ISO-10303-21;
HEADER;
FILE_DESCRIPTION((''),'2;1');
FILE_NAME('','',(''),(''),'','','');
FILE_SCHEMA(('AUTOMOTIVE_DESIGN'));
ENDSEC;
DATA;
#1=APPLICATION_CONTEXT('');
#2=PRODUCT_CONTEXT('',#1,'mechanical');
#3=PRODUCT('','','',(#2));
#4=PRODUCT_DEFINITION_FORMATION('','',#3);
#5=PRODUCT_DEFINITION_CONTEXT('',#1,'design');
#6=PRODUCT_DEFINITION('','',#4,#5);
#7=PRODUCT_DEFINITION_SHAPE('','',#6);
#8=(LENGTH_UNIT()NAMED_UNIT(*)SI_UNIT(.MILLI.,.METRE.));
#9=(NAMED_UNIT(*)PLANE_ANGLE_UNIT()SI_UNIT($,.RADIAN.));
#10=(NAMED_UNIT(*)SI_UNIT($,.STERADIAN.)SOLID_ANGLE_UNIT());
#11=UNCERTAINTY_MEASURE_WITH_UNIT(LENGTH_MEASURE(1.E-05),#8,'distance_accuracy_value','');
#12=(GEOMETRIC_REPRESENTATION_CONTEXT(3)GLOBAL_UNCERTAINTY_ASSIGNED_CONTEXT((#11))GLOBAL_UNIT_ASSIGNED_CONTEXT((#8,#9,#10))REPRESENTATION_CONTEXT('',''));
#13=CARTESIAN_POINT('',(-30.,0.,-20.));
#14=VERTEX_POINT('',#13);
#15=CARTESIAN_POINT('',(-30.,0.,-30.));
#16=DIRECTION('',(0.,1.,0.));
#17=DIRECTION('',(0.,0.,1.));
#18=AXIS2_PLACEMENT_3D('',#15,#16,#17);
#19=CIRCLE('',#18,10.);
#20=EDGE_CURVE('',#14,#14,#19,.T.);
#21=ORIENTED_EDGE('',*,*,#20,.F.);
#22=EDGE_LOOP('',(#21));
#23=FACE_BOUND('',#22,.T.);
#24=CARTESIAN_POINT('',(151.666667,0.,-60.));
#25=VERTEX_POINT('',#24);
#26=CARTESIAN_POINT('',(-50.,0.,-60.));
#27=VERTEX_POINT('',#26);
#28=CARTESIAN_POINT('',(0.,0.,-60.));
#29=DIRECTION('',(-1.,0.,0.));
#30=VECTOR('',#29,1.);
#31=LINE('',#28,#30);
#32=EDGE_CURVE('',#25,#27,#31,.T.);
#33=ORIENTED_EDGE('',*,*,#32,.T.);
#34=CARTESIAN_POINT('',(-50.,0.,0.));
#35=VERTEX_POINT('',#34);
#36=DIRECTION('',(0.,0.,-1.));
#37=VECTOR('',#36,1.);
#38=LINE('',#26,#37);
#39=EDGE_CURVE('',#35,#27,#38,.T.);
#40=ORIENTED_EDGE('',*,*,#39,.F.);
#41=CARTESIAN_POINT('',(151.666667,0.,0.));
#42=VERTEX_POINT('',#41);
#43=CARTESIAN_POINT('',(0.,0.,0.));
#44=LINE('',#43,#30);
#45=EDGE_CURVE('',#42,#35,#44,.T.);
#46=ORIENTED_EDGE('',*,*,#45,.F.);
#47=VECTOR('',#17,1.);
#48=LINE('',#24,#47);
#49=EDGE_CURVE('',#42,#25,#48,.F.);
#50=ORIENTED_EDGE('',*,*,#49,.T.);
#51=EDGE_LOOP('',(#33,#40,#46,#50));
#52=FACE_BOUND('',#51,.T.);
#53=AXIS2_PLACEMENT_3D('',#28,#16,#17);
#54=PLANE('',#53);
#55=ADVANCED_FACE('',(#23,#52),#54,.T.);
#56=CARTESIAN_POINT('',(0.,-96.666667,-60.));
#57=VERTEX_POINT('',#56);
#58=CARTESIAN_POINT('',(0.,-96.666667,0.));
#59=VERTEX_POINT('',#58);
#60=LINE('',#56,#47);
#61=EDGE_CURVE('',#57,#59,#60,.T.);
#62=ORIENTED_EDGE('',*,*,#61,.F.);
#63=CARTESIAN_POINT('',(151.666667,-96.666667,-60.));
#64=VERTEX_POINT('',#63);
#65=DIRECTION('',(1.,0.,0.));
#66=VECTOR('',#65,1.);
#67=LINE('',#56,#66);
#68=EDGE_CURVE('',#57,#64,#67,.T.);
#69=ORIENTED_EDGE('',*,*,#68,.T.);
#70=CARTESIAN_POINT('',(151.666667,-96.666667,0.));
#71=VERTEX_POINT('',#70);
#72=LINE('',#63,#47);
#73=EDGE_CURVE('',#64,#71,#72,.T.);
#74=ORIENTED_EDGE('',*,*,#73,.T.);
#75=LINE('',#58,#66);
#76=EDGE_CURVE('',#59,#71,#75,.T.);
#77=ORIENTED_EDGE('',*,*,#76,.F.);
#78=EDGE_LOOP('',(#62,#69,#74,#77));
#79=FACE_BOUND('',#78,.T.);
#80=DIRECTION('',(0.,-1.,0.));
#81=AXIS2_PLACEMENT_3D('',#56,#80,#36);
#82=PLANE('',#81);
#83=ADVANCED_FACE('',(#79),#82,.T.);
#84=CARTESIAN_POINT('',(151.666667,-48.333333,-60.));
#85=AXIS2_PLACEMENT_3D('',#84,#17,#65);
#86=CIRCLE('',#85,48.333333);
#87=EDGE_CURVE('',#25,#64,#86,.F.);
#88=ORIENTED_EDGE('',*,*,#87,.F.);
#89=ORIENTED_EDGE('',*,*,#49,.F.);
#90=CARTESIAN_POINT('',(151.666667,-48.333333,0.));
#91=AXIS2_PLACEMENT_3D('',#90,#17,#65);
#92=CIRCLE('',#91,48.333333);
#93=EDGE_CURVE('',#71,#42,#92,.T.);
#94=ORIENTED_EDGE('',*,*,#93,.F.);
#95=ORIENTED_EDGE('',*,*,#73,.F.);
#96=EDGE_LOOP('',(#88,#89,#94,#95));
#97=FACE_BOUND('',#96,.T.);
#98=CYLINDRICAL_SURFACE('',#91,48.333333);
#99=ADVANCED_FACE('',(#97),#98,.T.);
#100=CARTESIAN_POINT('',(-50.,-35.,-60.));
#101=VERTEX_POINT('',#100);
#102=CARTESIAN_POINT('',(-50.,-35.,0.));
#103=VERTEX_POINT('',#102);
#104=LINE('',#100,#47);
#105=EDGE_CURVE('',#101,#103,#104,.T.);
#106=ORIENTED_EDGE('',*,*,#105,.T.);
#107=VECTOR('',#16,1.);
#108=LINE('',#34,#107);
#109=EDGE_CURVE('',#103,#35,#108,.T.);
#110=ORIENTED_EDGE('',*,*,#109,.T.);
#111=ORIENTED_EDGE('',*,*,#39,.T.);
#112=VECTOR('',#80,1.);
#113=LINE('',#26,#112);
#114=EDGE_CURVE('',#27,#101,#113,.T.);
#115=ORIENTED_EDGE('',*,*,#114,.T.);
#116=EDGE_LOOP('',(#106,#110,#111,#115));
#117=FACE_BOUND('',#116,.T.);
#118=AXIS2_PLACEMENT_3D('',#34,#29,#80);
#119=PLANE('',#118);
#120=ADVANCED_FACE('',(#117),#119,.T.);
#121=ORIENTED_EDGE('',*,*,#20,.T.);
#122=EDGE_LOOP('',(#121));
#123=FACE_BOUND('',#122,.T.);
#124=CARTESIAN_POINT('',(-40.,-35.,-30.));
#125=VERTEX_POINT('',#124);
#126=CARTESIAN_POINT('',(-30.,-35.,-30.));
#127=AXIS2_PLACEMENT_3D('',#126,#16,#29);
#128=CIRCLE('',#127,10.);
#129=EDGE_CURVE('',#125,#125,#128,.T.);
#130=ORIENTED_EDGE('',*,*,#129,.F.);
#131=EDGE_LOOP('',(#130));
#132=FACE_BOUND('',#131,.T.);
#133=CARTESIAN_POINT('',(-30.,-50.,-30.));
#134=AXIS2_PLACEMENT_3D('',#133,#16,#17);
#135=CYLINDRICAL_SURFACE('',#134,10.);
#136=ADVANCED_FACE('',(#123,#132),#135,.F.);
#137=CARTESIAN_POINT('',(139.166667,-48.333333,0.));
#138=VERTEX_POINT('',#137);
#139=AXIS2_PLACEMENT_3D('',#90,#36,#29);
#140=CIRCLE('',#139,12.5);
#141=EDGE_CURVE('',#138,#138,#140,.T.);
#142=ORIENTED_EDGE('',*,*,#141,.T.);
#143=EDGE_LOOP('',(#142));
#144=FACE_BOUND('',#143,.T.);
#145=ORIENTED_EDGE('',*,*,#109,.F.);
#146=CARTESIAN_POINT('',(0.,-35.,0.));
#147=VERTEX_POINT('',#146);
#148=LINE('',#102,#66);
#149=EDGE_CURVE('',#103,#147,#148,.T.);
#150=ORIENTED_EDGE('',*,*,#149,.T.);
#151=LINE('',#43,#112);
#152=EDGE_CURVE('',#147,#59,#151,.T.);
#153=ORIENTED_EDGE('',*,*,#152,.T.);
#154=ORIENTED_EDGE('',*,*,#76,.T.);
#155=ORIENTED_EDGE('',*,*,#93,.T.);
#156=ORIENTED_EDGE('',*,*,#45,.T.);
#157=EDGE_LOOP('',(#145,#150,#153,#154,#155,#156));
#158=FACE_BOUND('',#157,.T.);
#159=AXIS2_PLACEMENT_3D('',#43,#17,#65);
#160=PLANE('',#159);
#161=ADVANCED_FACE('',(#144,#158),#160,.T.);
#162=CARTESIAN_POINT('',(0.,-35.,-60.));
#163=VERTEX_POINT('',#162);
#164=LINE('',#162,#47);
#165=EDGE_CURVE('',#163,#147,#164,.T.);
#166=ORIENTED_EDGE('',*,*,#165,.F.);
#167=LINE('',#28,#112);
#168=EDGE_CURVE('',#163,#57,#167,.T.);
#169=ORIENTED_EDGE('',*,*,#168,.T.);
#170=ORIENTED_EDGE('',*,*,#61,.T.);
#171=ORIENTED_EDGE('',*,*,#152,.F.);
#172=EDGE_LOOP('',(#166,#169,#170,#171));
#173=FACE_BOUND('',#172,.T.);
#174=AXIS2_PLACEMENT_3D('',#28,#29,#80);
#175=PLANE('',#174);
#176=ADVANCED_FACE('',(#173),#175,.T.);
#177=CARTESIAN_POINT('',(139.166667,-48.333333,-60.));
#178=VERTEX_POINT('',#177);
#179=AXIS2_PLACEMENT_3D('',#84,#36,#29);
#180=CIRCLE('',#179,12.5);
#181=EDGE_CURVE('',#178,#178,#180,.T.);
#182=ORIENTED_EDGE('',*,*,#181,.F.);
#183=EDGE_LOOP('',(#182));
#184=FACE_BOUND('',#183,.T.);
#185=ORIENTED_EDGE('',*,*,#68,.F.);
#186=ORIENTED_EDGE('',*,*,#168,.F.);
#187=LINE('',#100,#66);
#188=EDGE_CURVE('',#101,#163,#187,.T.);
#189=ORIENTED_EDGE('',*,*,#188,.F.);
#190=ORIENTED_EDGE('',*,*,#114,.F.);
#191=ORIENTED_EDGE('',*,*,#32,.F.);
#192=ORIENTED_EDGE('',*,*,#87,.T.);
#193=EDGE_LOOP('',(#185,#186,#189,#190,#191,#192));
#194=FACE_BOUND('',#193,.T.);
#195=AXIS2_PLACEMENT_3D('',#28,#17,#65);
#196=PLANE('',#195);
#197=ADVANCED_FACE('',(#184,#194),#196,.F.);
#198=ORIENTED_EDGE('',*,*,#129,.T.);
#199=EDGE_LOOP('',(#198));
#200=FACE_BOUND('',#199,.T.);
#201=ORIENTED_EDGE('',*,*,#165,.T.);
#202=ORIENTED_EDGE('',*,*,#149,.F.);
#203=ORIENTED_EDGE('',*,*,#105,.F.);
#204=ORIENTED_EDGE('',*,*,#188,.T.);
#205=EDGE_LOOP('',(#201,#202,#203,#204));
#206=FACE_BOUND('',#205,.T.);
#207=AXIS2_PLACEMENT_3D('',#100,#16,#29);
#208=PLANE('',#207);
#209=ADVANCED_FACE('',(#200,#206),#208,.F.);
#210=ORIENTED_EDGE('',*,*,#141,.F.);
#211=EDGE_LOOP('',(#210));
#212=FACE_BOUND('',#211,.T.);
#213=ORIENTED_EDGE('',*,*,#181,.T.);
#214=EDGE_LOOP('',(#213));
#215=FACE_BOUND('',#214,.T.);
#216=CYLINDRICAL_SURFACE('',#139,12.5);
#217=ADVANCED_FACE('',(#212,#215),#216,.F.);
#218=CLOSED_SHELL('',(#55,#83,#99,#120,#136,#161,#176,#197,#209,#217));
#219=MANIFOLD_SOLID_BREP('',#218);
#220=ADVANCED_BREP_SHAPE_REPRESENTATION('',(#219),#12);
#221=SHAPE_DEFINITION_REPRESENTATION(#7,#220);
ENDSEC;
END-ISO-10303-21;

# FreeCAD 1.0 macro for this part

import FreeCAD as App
import Part
import Sketcher


def edges_at(feature, points):
    """Names of the edges that pass closest to the given points."""
    edges = feature.Shape.Edges
    near = lambda p: min(range(len(edges)), key=lambda i: edges[i].distToShape(Part.Vertex(*p))[0])
    return sorted({f"Edge{near(p) + 1}" for p in points})

doc = App.newDocument("Part")
params = doc.addObject("Spreadsheet::Sheet", "Params")
for row, (alias, value) in enumerate([
    ("sketch1_width", "200 mm"),
    ("pad1_length", "60 mm"),
    ("fillet_radius", "48.333333 mm"),
    ("sketch2_diameter", "25 mm"),
    ("sketch3_width", "35 mm"),
    ("sketch3_height", "60 mm"),
    ("pad2_length", "50 mm"),
    ("sketch4_diameter", "20 mm"),
    ("pocket2_length", "50 mm"),
], start=1):
    params.set(f"A{row}", alias)
    params.set(f"B{row}", "=" + value)
    params.setAlias(f"B{row}", alias)

body = doc.addObject("PartDesign::Body", "Body")

# Sketch on XY plane
sketch1 = doc.addObject("Sketcher::SketchObject", "Sketch")
body.addObject(sketch1)
sketch1.AttachmentSupport = (doc.XY_Plane, [""])
sketch1.MapMode = "FlatFace"
sketch1.addGeometry([
    Part.LineSegment(App.Vector(0, 0, 0), App.Vector(0, -96.666667, 0)),
    Part.LineSegment(App.Vector(0, -96.666667, 0), App.Vector(200, -96.666667, 0)),
    Part.LineSegment(App.Vector(200, -96.666667, 0), App.Vector(200, 0, 0)),
    Part.LineSegment(App.Vector(200, 0, 0), App.Vector(0, 0, 0)),
], False)
sketch1.addConstraint([
    Sketcher.Constraint("Coincident", 0, 2, 1, 1),
    Sketcher.Constraint("Coincident", 1, 2, 2, 1),
    Sketcher.Constraint("Coincident", 2, 2, 3, 1),
    Sketcher.Constraint("Coincident", 3, 2, 0, 1),
    Sketcher.Constraint("Vertical", 0),
    Sketcher.Constraint("Horizontal", 1),
    Sketcher.Constraint("Vertical", 2),
    Sketcher.Constraint("Horizontal", 3),
    Sketcher.Constraint("Coincident", 3, 2, -1, 1),
    Sketcher.Constraint("DistanceX", 1, 1, 1, 2, 200.0),
    Sketcher.Constraint("DistanceY", 0, 2, 0, 1, 96.666667),
])
sketch1.setExpression("Constraints[9]", "Params.sketch1_width")
pad1 = doc.addObject("PartDesign::Pad", "Pad")
body.addObject(pad1)
pad1.Profile = sketch1
pad1.setExpression("Length", "Params.pad1_length")
pad1.Reversed = True
doc.recompute()

fillet = doc.addObject("PartDesign::Fillet", "Fillet")
body.addObject(fillet)
fillet.Base = (pad1, edges_at(pad1, [(200, 0, -30), (200, -96.667, -30)]))
fillet.setExpression("Radius", "Params.fillet_radius")

# Sketch on XY plane
sketch2 = doc.addObject("Sketcher::SketchObject", "Sketch001")
body.addObject(sketch2)
sketch2.AttachmentSupport = (doc.XY_Plane, [""])
sketch2.MapMode = "FlatFace"
sketch2.AttachmentOffset = App.Placement(App.Vector(0, 0, -60), App.Rotation())
sketch2.addGeometry(Part.Circle(App.Vector(151.666667, -48.333333, 0), App.Vector(0, 0, 1), 12.5), False)
sketch2.addConstraint([
    Sketcher.Constraint("Diameter", 0, 25.0),
    Sketcher.Constraint("DistanceX", -1, 1, 0, 3, 151.666667),
    Sketcher.Constraint("DistanceY", 0, 3, -1, 1, 48.333333),
])
sketch2.setExpression("Constraints[0]", "Params.sketch2_diameter")
pocket1 = doc.addObject("PartDesign::Pocket", "Pocket")
body.addObject(pocket1)
pocket1.Profile = sketch2
pocket1.Type = "ThroughAll"
pocket1.Reversed = True

# Sketch on YZ plane
sketch3 = doc.addObject("Sketcher::SketchObject", "Sketch002")
body.addObject(sketch3)
sketch3.AttachmentSupport = (doc.YZ_Plane, [""])
sketch3.MapMode = "FlatFace"
sketch3.addGeometry([
    Part.LineSegment(App.Vector(0, -60, 0), App.Vector(-35, -60, 0)),
    Part.LineSegment(App.Vector(-35, -60, 0), App.Vector(-35, 0, 0)),
    Part.LineSegment(App.Vector(-35, 0, 0), App.Vector(0, 0, 0)),
    Part.LineSegment(App.Vector(0, 0, 0), App.Vector(0, -60, 0)),
], False)
sketch3.addConstraint([
    Sketcher.Constraint("Coincident", 0, 2, 1, 1),
    Sketcher.Constraint("Coincident", 1, 2, 2, 1),
    Sketcher.Constraint("Coincident", 2, 2, 3, 1),
    Sketcher.Constraint("Coincident", 3, 2, 0, 1),
    Sketcher.Constraint("Horizontal", 0),
    Sketcher.Constraint("Vertical", 1),
    Sketcher.Constraint("Horizontal", 2),
    Sketcher.Constraint("Vertical", 3),
    Sketcher.Constraint("Coincident", 2, 2, -1, 1),
    Sketcher.Constraint("DistanceX", 0, 2, 0, 1, 35.0),
    Sketcher.Constraint("DistanceY", 1, 1, 1, 2, 60.0),
])
sketch3.setExpression("Constraints[9]", "Params.sketch3_width")
sketch3.setExpression("Constraints[10]", "Params.sketch3_height")
pad2 = doc.addObject("PartDesign::Pad", "Pad001")
body.addObject(pad2)
pad2.Profile = sketch3
pad2.setExpression("Length", "Params.pad2_length")
pad2.Reversed = True

# Sketch on XZ plane
sketch4 = doc.addObject("Sketcher::SketchObject", "Sketch003")
body.addObject(sketch4)
sketch4.AttachmentSupport = (doc.XZ_Plane, [""])
sketch4.MapMode = "FlatFace"
sketch4.addGeometry(Part.Circle(App.Vector(-30, -30, 0), App.Vector(0, 0, 1), 10), False)
sketch4.addConstraint([
    Sketcher.Constraint("Diameter", 0, 20.0),
    Sketcher.Constraint("DistanceX", 0, 3, -1, 1, 30.0),
    Sketcher.Constraint("DistanceY", 0, 3, -1, 1, 30.0),
])
sketch4.setExpression("Constraints[0]", "Params.sketch4_diameter")
pocket2 = doc.addObject("PartDesign::Pocket", "Pocket001")
body.addObject(pocket2)
pocket2.Profile = sketch4
pocket2.setExpression("Length", "Params.pocket2_length")
pocket2.Reversed = True

doc.recompute()
